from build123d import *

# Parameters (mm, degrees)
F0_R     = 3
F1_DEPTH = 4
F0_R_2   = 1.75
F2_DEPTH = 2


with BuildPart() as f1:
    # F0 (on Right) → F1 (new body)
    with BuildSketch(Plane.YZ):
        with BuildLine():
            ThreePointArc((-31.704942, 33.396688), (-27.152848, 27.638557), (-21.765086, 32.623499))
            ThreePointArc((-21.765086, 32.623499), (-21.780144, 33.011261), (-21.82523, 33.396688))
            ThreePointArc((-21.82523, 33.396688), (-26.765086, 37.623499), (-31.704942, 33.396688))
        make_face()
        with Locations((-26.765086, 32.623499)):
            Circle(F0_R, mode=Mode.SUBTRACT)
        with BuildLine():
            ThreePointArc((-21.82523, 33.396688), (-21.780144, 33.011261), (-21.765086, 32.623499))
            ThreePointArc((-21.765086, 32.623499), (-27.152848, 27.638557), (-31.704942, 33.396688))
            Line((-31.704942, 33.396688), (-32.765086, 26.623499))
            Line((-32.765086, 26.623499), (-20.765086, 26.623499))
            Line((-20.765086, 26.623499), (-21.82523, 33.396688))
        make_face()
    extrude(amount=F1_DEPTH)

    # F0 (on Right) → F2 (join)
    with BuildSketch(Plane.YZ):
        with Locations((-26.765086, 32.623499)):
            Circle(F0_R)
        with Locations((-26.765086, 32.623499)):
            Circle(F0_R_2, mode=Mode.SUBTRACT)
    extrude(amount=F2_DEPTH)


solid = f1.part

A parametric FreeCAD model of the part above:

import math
import FreeCAD as App
import Part
import Sketcher

doc = App.newDocument("Part")
body = doc.addObject("PartDesign::Body", "Body")

# Sketch on YZ plane
sketch1 = doc.addObject("Sketcher::SketchObject", "Sketch")
body.addObject(sketch1)
sketch1.AttachmentSupport = (doc.YZ_Plane, [""])
sketch1.MapMode = "FlatFace"
sketch1.addGeometry([
    Part.ArcOfCircle(Part.Circle(App.Vector(-26.8, 32.6, 0), App.Vector(0, 0, 1), 5), math.radians(9), math.radians(171)),  # 0
    Part.LineSegment(App.Vector(-31.7, 33.4, 0), App.Vector(-32.8, 26.6, 0)),  # 1
    Part.LineSegment(App.Vector(-32.8, 26.6, 0), App.Vector(-20.8, 26.6, 0)),  # 2
    Part.LineSegment(App.Vector(-20.8, 26.6, 0), App.Vector(-21.8, 33.4, 0)),  # 3
    Part.Circle(App.Vector(-26.8, 32.6, 0), App.Vector(0, 0, 1), 3),  # 4
], False)
sketch1.addConstraint([
    Sketcher.Constraint("Tangent", 0, 2, 1, 1),
    Sketcher.Constraint("Coincident", 1, 2, 2, 1),
    Sketcher.Constraint("Coincident", 2, 2, 3, 1),
    Sketcher.Constraint("Tangent", 3, 2, 0, 1),
    Sketcher.Constraint("Horizontal", 2),
    Sketcher.Constraint("Coincident", 4, 3, 0, 3),
    Sketcher.Constraint("Horizontal", 0, 2, 3, 2),
    Sketcher.Constraint("Diameter", 4, 6.0),
    Sketcher.Constraint("Radius", 0, 5.0),
    Sketcher.Constraint("DistanceX", 2, 1, 2, 2, 12.0),
    Sketcher.Constraint("DistanceY", 1, 2, 4, 3, 6.0),
    Sketcher.Constraint("DistanceY", -1, 1, 0, 3, 32.623499),
    Sketcher.Constraint("DistanceX", 0, 2, -1, 1, 31.704942),
])
pad1 = doc.addObject("PartDesign::Pad", "Pad")
body.addObject(pad1)
pad1.Profile = sketch1
pad1.Length = 4

# Sketch on YZ plane
sketch2 = doc.addObject("Sketcher::SketchObject", "Sketch001")
body.addObject(sketch2)
sketch2.AttachmentSupport = (doc.YZ_Plane, [""])
sketch2.MapMode = "FlatFace"
sketch2.addGeometry([
    Part.Circle(App.Vector(-26.8, 32.6, 0), App.Vector(0, 0, 1), 3),
    Part.Circle(App.Vector(-26.8, 32.6, 0), App.Vector(0, 0, 1), 1.8),
], False)
sketch2.addConstraint([
    Sketcher.Constraint("Coincident", 1, 3, 0, 3),
    Sketcher.Constraint("Diameter", 0, 6.0),
    Sketcher.Constraint("Diameter", 1, 3.5),
    Sketcher.Constraint("DistanceY", -1, 1, 0, 3, 32.623499),
    Sketcher.Constraint("DistanceX", 0, 3, -1, 1, 26.765086),
])
pad2 = doc.addObject("PartDesign::Pad", "Pad001")
body.addObject(pad2)
pad2.Profile = sketch2
pad2.Length = 2

doc.recompute()
